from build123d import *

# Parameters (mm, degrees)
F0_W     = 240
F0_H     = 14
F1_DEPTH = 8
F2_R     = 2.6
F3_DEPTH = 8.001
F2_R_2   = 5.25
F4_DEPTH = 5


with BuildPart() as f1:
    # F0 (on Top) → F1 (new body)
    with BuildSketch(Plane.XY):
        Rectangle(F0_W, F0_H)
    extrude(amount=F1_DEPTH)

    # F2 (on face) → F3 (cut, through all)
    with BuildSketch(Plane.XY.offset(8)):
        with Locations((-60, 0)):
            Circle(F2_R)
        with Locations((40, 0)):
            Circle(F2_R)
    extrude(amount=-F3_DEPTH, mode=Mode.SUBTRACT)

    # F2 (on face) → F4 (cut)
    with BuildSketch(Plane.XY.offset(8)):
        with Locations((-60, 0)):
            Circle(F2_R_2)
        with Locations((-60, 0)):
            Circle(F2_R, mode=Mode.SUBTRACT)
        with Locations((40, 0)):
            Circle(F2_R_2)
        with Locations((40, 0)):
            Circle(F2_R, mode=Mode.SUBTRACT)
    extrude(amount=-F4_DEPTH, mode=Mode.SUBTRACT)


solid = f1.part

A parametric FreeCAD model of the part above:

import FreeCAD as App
import Part
import Sketcher
from FreeCAD import Vector
Q = App.Units.Quantity


def add_polygon(sketch, points):
    """Adds a closed chain of lines whose ends are joined by coincident constraints."""
    first, n = sketch.GeometryCount, len(points)
    for a, b in zip(points, points[1:] + points[:1]):
        sketch.addGeometry(Part.LineSegment(App.Vector(*a, 0), App.Vector(*b, 0)), False)
    for i in range(n):
        sketch.addConstraint(Sketcher.Constraint("Coincident", first + i, 2, first + (i + 1) % n, 1))

doc = App.newDocument("Part")
body = doc.addObject("PartDesign::Body", "Body")

sketch1 = doc.addObject("Sketcher::SketchObject", "Sketch")
body.addObject(sketch1)
sketch1.AttachmentSupport = (doc.XY_Plane, [""])
sketch1.MapMode = "FlatFace"
add_polygon(sketch1, [(-120, 7), (-120, -7), (120, -7), (120, 7)])
sketch1.addConstraint([
    Sketcher.Constraint("Vertical", 0),
    Sketcher.Constraint("Horizontal", 1),
    Sketcher.Constraint("Vertical", 2),
    Sketcher.Constraint("Horizontal", 3),
    Sketcher.Constraint("Symmetric", 0, 2, 2, 2, -1, 1),
    Sketcher.Constraint("DistanceX", 1, 1, 1, 2, Q("240 mm")),
    Sketcher.Constraint("DistanceY", 0, 2, 0, 1, Q("14 mm")),
])
pad1 = doc.addObject("PartDesign::Pad", "Pad")
body.addObject(pad1)
pad1.Profile = sketch1
pad1.Length = 8

sketch2 = doc.addObject("Sketcher::SketchObject", "Sketch001")
body.addObject(sketch2)
sketch2.AttachmentSupport = (doc.XY_Plane, [""])
sketch2.MapMode = "FlatFace"
sketch2.AttachmentOffset = App.Placement(Vector(0, 0, 8), App.Rotation())
sketch2.addGeometry([
    Part.Circle(Vector(-60, 0, 0), Vector(0, 0, 1), 2.6),
    Part.Circle(Vector(40, 0, 0), Vector(0, 0, 1), 2.6),
], False)
sketch2.addConstraint([
    Sketcher.Constraint("Equal", 0, 1),
    Sketcher.Constraint("PointOnObject", 0, 3, -1),
    Sketcher.Constraint("PointOnObject", 1, 3, -1),
    Sketcher.Constraint("Diameter", 0, Q("5.2 mm")),
    Sketcher.Constraint("DistanceX", 0, 3, -1, 1, Q("60 mm")),
    Sketcher.Constraint("DistanceX", -1, 1, 1, 3, Q("40 mm")),
])
pocket1 = doc.addObject("PartDesign::Pocket", "Pocket")
body.addObject(pocket1)
pocket1.Profile = sketch2
pocket1.Type = "ThroughAll"

sketch3 = doc.addObject("Sketcher::SketchObject", "Sketch002")
body.addObject(sketch3)
sketch3.AttachmentSupport = (doc.XY_Plane, [""])
sketch3.MapMode = "FlatFace"
sketch3.AttachmentOffset = App.Placement(Vector(0, 0, 8), App.Rotation())
sketch3.addGeometry([
    Part.Circle(Vector(-60, 0, 0), Vector(0, 0, 1), 5.25),
    Part.Circle(Vector(-60, 0, 0), Vector(0, 0, 1), 2.6),
    Part.Circle(Vector(40, 0, 0), Vector(0, 0, 1), 5.25),
    Part.Circle(Vector(40, 0, 0), Vector(0, 0, 1), 2.6),
], False)
sketch3.addConstraint([
    Sketcher.Constraint("Coincident", 1, 3, 0, 3),
    Sketcher.Constraint("Coincident", 3, 3, 2, 3),
    Sketcher.Constraint("Equal", 0, 2),
    Sketcher.Constraint("Equal", 1, 3),
    Sketcher.Constraint("PointOnObject", 0, 3, -1),
    Sketcher.Constraint("PointOnObject", 2, 3, -1),
    Sketcher.Constraint("Diameter", 0, Q("10.5 mm")),
    Sketcher.Constraint("Diameter", 1, Q("5.2 mm")),
    Sketcher.Constraint("DistanceX", 0, 3, -1, 1, Q("60 mm")),
    Sketcher.Constraint("DistanceX", -1, 1, 2, 3, Q("40 mm")),
])
pocket2 = doc.addObject("PartDesign::Pocket", "Pocket001")
body.addObject(pocket2)
pocket2.Profile = sketch3
pocket2.Length = 5

doc.recompute()
